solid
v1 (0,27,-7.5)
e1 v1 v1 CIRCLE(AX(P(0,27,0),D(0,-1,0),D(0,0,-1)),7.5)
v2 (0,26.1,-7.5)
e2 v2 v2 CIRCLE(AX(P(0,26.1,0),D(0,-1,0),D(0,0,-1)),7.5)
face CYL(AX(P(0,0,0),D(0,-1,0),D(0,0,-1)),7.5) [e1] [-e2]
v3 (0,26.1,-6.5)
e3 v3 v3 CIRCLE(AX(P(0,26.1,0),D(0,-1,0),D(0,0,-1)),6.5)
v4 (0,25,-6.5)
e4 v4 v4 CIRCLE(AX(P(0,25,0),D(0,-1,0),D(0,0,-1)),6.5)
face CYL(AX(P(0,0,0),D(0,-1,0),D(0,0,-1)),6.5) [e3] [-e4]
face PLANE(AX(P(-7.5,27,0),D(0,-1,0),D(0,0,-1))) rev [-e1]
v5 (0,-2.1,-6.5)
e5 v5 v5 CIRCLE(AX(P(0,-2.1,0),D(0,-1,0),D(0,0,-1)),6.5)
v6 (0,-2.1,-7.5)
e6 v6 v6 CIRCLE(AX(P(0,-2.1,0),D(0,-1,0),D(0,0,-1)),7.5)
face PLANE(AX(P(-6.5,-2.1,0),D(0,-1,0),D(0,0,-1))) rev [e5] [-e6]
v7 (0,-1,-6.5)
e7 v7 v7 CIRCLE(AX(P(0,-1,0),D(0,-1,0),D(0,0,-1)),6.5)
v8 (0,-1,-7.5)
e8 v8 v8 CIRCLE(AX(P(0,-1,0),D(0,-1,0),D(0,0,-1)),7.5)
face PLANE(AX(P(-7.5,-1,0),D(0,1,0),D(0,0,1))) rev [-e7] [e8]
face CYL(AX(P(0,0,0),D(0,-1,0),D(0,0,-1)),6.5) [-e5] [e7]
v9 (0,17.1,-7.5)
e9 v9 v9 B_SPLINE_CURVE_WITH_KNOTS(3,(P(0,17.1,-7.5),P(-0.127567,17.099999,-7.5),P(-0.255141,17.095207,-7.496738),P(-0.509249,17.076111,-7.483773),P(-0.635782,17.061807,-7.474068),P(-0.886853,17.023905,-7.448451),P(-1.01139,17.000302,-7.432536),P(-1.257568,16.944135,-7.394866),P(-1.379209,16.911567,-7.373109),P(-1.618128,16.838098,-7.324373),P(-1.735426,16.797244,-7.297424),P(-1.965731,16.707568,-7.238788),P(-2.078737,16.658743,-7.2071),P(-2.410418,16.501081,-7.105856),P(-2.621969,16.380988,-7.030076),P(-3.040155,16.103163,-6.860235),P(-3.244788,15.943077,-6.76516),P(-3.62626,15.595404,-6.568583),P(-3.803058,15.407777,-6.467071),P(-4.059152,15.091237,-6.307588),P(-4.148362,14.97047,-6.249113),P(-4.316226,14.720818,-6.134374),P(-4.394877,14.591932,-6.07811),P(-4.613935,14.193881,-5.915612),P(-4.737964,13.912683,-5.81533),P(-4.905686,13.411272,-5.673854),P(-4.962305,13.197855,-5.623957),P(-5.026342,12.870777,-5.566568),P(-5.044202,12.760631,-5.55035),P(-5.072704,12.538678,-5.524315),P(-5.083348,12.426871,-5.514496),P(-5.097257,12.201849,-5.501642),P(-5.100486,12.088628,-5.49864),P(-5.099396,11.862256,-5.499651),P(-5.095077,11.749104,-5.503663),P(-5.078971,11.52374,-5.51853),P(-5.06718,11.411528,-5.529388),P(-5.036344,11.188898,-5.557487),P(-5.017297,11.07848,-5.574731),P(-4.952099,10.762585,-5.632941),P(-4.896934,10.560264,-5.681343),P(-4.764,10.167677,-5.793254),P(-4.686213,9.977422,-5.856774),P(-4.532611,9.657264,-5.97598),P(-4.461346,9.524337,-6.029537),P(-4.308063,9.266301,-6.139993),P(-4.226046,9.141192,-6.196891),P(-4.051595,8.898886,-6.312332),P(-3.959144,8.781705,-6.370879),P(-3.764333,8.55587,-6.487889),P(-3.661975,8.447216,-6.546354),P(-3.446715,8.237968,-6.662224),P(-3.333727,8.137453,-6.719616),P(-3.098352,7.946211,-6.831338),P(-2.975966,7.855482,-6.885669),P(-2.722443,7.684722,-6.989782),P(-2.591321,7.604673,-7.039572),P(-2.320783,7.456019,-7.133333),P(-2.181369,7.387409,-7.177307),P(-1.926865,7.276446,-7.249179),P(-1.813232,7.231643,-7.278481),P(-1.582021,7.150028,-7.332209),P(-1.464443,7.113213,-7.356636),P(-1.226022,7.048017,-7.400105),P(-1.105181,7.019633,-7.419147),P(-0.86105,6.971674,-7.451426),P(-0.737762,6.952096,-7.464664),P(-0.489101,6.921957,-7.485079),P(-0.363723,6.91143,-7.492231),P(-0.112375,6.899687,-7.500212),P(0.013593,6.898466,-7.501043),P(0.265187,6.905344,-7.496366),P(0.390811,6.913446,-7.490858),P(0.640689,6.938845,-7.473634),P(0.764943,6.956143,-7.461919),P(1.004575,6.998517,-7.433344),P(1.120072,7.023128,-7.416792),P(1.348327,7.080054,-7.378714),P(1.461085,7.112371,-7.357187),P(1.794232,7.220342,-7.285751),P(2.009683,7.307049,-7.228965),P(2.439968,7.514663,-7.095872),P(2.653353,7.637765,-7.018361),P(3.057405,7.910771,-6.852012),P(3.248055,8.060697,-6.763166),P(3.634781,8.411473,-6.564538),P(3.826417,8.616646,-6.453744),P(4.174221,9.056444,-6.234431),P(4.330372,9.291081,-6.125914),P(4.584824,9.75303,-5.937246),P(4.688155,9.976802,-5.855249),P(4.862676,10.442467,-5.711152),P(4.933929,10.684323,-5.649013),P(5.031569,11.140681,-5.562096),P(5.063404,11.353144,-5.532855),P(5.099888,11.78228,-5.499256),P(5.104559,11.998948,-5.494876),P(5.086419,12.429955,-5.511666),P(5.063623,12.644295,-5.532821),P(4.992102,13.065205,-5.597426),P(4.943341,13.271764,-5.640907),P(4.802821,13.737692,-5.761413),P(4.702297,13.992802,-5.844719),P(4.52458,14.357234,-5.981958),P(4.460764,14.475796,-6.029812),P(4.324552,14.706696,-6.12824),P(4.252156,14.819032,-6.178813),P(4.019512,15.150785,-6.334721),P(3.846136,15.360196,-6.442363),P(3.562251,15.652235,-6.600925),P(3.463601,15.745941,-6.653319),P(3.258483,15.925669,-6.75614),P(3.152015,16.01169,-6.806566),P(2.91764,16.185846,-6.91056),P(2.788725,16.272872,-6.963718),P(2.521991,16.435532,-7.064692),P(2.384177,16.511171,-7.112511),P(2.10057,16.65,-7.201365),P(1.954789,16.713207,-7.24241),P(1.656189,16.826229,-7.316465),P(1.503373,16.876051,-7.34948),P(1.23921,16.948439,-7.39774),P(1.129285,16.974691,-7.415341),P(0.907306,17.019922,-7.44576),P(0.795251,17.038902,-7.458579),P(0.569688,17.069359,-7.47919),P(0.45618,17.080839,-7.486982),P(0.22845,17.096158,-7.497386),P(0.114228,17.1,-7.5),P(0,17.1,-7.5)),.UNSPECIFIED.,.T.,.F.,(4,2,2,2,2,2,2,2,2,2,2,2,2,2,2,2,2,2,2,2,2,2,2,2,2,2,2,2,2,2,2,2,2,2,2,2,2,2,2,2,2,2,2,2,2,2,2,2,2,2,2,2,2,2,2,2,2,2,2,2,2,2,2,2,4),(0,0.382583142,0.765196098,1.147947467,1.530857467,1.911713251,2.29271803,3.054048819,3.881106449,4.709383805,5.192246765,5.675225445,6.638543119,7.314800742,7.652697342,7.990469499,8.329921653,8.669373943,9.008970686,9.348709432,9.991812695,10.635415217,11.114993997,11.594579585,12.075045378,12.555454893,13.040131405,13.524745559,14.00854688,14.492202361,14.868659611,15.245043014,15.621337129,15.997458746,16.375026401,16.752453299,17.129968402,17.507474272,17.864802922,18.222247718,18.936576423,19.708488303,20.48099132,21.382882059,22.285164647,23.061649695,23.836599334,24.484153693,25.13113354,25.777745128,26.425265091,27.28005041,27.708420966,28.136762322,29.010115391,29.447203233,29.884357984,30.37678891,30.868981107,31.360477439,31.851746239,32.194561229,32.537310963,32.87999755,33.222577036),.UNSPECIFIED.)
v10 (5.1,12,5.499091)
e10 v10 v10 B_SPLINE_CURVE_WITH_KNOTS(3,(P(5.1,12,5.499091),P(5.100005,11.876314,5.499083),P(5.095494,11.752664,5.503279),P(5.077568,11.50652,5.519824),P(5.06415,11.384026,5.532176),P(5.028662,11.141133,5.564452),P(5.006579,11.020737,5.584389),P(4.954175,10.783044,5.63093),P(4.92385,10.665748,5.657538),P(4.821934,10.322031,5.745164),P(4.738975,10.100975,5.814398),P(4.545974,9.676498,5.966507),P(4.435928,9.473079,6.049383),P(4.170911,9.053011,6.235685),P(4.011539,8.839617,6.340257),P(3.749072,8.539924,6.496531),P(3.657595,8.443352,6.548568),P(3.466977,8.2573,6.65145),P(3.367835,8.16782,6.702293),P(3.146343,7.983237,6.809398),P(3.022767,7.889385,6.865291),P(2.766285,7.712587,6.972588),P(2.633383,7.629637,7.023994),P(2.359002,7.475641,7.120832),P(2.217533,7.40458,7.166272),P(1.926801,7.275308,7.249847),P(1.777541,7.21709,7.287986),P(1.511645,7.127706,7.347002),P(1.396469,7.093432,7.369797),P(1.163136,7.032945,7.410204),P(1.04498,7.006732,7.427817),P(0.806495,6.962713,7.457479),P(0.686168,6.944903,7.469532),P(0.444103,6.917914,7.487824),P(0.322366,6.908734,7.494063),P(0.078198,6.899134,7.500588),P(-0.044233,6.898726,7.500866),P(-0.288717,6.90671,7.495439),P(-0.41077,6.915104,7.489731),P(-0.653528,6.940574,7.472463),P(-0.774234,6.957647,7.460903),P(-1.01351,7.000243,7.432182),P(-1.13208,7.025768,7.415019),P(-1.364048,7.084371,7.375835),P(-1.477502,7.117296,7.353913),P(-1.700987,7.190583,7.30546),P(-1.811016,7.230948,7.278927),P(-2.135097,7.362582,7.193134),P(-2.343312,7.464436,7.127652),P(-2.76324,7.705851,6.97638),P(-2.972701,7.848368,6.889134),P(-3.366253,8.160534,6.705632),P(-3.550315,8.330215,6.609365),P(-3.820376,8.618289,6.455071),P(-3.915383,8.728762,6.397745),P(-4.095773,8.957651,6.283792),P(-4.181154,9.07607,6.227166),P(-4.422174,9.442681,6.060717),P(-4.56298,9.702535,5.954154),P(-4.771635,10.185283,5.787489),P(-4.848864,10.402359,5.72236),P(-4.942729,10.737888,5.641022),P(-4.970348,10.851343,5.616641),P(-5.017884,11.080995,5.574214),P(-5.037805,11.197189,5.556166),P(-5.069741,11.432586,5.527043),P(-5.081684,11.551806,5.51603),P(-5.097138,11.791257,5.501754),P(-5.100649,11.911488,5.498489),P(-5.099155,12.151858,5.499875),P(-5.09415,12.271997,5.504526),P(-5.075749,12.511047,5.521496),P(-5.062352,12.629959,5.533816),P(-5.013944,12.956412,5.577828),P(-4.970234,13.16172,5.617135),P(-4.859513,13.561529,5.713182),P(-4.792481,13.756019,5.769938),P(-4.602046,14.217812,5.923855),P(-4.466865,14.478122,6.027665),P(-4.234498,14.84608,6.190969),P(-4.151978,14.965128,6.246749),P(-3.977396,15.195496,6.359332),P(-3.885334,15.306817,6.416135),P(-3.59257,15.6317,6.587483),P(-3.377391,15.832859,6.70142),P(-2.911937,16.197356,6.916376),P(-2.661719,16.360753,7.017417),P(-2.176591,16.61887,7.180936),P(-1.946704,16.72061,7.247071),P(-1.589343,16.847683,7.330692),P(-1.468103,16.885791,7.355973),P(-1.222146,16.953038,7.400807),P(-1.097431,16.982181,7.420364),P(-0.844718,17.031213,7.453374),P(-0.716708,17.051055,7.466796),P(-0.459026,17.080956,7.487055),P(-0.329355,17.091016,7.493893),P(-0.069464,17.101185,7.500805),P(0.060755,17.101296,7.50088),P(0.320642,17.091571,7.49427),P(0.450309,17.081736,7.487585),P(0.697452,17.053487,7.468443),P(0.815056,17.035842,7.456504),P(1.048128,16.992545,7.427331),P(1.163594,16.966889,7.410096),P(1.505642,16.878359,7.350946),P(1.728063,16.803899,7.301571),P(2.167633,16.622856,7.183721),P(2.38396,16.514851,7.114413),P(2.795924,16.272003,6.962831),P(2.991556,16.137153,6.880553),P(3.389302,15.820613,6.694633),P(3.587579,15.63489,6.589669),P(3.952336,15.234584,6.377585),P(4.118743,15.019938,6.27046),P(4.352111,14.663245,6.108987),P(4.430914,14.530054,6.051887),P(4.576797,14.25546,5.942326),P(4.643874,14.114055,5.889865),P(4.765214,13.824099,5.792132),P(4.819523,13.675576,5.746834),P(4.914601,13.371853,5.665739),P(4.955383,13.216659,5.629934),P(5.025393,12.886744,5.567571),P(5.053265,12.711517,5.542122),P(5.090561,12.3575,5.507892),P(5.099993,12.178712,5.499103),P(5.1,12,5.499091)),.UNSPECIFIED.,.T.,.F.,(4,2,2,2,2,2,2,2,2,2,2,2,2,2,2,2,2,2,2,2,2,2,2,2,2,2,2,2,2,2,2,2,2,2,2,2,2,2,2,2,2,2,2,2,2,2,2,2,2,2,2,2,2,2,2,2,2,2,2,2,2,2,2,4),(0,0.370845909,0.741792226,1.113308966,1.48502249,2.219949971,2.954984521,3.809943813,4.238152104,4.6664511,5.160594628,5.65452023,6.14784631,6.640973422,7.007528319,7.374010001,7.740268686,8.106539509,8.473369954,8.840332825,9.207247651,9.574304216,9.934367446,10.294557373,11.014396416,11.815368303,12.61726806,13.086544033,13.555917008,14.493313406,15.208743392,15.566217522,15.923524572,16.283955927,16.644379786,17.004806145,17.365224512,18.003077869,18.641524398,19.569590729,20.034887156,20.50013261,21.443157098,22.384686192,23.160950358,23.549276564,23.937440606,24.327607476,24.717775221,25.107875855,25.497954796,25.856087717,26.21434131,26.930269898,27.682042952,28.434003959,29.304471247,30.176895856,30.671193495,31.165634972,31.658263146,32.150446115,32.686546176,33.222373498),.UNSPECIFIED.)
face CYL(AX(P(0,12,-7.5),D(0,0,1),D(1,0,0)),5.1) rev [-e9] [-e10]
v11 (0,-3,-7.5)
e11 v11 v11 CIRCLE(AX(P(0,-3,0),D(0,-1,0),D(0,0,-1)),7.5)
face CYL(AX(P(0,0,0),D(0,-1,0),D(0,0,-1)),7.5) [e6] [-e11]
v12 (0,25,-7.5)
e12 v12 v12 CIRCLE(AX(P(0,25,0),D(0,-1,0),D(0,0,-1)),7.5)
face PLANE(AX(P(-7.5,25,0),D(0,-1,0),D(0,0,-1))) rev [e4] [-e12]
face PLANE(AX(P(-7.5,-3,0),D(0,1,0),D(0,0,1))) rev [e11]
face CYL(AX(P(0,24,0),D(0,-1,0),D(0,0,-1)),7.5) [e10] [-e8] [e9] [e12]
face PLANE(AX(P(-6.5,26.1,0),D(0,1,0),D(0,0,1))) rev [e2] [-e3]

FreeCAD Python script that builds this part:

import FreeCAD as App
import Part
import Sketcher


def add_polygon(sketch, points):
    """Adds a closed chain of lines whose ends are joined by coincident constraints."""
    first, n = sketch.GeometryCount, len(points)
    for a, b in zip(points, points[1:] + points[:1]):
        sketch.addGeometry(Part.LineSegment(App.Vector(*a, 0), App.Vector(*b, 0)), False)
    for i in range(n):
        sketch.addConstraint(Sketcher.Constraint("Coincident", first + i, 2, first + (i + 1) % n, 1))

doc = App.newDocument("Part")
body = doc.addObject("PartDesign::Body", "Body")

# Sketch on XZ plane
sketch1 = doc.addObject("Sketcher::SketchObject", "Sketch")
body.addObject(sketch1)
sketch1.AttachmentSupport = (doc.XZ_Plane, [""])
sketch1.MapMode = "FlatFace"
sketch1.addGeometry(Part.Circle(App.Vector(0, 0, 0), App.Vector(0, 0, 1), 8), False)
sketch1.addConstraint([
    Sketcher.Constraint("Coincident", 0, 3, -1, 1),
    Sketcher.Constraint("Diameter", 0, 15.0),
])
pad1 = doc.addObject("PartDesign::Pad", "Pad")
body.addObject(pad1)
pad1.Profile = sketch1
pad1.Length = 24
pad1.Reversed = True

# Sketch on XY plane
sketch2 = doc.addObject("Sketcher::SketchObject", "Sketch001")
body.addObject(sketch2)
sketch2.AttachmentSupport = (doc.XY_Plane, [""])
sketch2.MapMode = "FlatFace"
sketch2.addGeometry(Part.Circle(App.Vector(0, 12, 0), App.Vector(0, 0, 1), 5), False)
sketch2.addConstraint([
    Sketcher.Constraint("PointOnObject", 0, 3, -2),
    Sketcher.Constraint("Diameter", 0, 10.2),
    Sketcher.Constraint("DistanceY", -1, 1, 0, 3, 12.0),
])
pocket1 = doc.addObject("PartDesign::Pocket", "Pocket")
body.addObject(pocket1)
pocket1.Profile = sketch2
pocket1.Type = "ThroughAll"
pocket1.Midplane = True

# Sketch on XY plane
sketch3 = doc.addObject("Sketcher::SketchObject", "Sketch002")
body.addObject(sketch3)
sketch3.AttachmentSupport = (doc.XY_Plane, [""])
sketch3.MapMode = "FlatFace"
add_polygon(sketch3, [(-7.5, 24), (0, 24), (0, 27), (-7.5, 27), (-7.5, 26.1), (-6.5, 26.1), (-6.5, 25), (-7.5, 25)])  # lines 0-7
add_polygon(sketch3, [(-7.5, -3), (0, -3), (0, 0), (-7.5, 0), (-7.5, -1), (-6.5, -1), (-6.5, -2.1), (-7.5, -2.1)])  # lines 8-15
sketch3.addConstraint([
    Sketcher.Constraint("Horizontal", 0),
    Sketcher.Constraint("Vertical", 1),
    Sketcher.Constraint("Horizontal", 2),
    Sketcher.Constraint("Vertical", 3),
    Sketcher.Constraint("Horizontal", 4),
    Sketcher.Constraint("Vertical", 5),
    Sketcher.Constraint("Horizontal", 6),
    Sketcher.Constraint("Vertical", 7),
    Sketcher.Constraint("Horizontal", 8),
    Sketcher.Constraint("Vertical", 9),
    Sketcher.Constraint("Horizontal", 10),
    Sketcher.Constraint("Vertical", 11),
    Sketcher.Constraint("Horizontal", 12),
    Sketcher.Constraint("Vertical", 13),
    Sketcher.Constraint("Horizontal", 14),
    Sketcher.Constraint("Vertical", 15),
    Sketcher.Constraint("Coincident", 9, 2, -1, 1),
    Sketcher.Constraint("PointOnObject", 0, 2, -2),
    Sketcher.Constraint("Vertical", 3, 2, 6, 2),
    Sketcher.Constraint("Vertical", 7, 2, 10, 2),
    Sketcher.Constraint("Vertical", 5, 2, 12, 2),
    Sketcher.Constraint("Vertical", 11, 2, 14, 2),
    Sketcher.Constraint("Equal", 14, 7),
    Sketcher.Constraint("Equal", 1, 9),
    Sketcher.Constraint("Equal", 7, 11),
    Sketcher.Constraint("Equal", 5, 13),
    Sketcher.Constraint("DistanceX", 4, 1, 4, 2, 1.0),
    Sketcher.Constraint("DistanceY", 1, 1, 1, 2, 3.0),
    Sketcher.Constraint("DistanceX", 0, 1, 0, 2, 7.5),
    Sketcher.Constraint("DistanceY", 3, 2, 3, 1, 0.9),
    Sketcher.Constraint("DistanceY", -1, 1, 0, 2, 24.0),
])
revolution = doc.addObject("PartDesign::Revolution", "Revolution")
body.addObject(revolution)
revolution.Profile = sketch3
revolution.ReferenceAxis = (sketch3, ["V_Axis"])
revolution.Angle = 360

doc.recompute()
